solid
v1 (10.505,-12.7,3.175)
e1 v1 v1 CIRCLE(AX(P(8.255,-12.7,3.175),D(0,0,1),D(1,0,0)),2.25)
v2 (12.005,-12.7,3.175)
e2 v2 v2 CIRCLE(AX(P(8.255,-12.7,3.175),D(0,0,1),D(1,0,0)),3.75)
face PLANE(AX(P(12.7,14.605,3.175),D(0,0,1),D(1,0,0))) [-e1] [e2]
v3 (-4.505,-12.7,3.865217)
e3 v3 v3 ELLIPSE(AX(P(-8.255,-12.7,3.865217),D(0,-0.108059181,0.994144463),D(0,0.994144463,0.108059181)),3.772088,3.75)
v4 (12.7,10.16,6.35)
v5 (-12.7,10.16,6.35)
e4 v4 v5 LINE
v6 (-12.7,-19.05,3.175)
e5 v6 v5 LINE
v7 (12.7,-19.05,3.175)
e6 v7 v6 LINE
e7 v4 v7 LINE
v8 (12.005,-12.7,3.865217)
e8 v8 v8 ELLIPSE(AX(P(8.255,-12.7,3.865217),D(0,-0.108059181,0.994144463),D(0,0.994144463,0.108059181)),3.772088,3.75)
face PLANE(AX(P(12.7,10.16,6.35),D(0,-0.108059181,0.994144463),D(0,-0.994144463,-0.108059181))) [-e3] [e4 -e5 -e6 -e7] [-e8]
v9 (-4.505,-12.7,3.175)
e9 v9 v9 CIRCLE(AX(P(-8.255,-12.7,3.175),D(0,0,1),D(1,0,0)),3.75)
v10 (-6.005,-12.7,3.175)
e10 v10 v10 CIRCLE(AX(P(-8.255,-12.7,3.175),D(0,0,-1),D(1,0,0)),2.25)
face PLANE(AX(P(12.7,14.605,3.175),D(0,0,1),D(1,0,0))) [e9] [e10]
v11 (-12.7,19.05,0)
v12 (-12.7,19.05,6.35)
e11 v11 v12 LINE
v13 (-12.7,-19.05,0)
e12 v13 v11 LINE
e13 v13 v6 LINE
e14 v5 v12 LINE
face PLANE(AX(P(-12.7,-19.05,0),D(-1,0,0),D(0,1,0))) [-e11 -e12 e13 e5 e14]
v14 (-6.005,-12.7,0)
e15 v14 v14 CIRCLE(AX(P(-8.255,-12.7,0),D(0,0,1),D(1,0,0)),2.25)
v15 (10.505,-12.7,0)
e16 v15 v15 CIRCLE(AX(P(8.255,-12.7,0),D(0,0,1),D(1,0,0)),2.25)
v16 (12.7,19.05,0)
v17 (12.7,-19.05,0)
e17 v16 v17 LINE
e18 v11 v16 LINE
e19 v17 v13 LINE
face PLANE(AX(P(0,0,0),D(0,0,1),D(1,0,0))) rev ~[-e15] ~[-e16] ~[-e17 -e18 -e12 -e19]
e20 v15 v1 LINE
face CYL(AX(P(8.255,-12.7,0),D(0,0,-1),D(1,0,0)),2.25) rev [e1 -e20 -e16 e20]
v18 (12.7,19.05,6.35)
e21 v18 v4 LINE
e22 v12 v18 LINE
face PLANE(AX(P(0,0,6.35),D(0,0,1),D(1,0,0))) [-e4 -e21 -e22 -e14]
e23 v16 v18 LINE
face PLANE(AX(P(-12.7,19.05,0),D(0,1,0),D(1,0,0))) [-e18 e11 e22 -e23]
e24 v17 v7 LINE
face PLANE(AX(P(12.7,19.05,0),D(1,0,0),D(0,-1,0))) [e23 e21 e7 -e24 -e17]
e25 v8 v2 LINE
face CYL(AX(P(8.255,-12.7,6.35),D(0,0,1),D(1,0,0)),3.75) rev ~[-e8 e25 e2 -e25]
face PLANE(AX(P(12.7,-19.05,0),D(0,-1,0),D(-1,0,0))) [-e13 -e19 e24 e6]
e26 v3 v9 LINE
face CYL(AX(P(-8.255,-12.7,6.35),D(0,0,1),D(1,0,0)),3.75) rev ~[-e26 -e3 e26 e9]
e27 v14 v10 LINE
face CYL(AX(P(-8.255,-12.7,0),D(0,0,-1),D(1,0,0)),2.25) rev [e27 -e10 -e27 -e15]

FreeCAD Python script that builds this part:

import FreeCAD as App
import Part
import Sketcher
from FreeCAD import Vector
Q = App.Units.Quantity

doc = App.newDocument("Part")
params = doc.addObject("Spreadsheet::Sheet", "Params")
for row, (alias, value) in enumerate([
    ("sketch1_width", "1 in"),
    ("sketch1_height", "1.5 in"),
    ("pad1_length", "0.25 in"),
    ("sketch2_width", "1.15 in"),
    ("sketch2_height", "0.125 in"),
    ("pocket2_length", "0.125 in"),
], start=1):
    params.set(f"A{row}", alias)
    params.set(f"B{row}", "=" + value)
    params.setAlias(f"B{row}", alias)

body = doc.addObject("PartDesign::Body", "Body")

# Sketch on XY plane
sketch1 = body.newObject("Sketcher::SketchObject", "Sketch")
sketch1.AttachmentSupport = (doc.getObject("XY_Plane"), [""])
sketch1.MapMode = "FlatFace"
sketch1.addGeometry(Part.LineSegment(Vector(-12.7, -19.1, 0), Vector(12.7, -19.1, 0)), False)
sketch1.addGeometry(Part.LineSegment(Vector(12.7, -19.1, 0), Vector(12.7, 19.1, 0)), False)
sketch1.addGeometry(Part.LineSegment(Vector(12.7, 19.1, 0), Vector(-12.7, 19.1, 0)), False)
sketch1.addGeometry(Part.LineSegment(Vector(-12.7, 19.1, 0), Vector(-12.7, -19.1, 0)), False)
sketch1.addGeometry(Part.Circle(Vector(-8.3, -12.7, 0), Vector(0, 0, 1), 2.2), False)
sketch1.addGeometry(Part.Circle(Vector(8.3, -12.7, 0), Vector(0, 0, 1), 2.2), False)
sketch1.addConstraint(Sketcher.Constraint("Coincident", 0, 2, 1, 1))
sketch1.addConstraint(Sketcher.Constraint("Coincident", 1, 2, 2, 1))
sketch1.addConstraint(Sketcher.Constraint("Coincident", 2, 2, 3, 1))
sketch1.addConstraint(Sketcher.Constraint("Coincident", 3, 2, 0, 1))
sketch1.addConstraint(Sketcher.Constraint("Horizontal", 0))
sketch1.addConstraint(Sketcher.Constraint("Vertical", 1))
sketch1.addConstraint(Sketcher.Constraint("Horizontal", 2))
sketch1.addConstraint(Sketcher.Constraint("Vertical", 3))
sketch1.addConstraint(Sketcher.Constraint("Equal", 4, 5))
sketch1.addConstraint(Sketcher.Constraint("Symmetric", 0, 2, 2, 2, -1, 1))
sketch1.addConstraint(Sketcher.Constraint("Symmetric", 4, 3, 5, 3, -2))
sketch1.addConstraint(Sketcher.Constraint("DistanceX", 0, 1, 0, 2, Q("1 in")))
sketch1.addConstraint(Sketcher.Constraint("DistanceY", 1, 1, 1, 2, Q("1.5 in")))
sketch1.addConstraint(Sketcher.Constraint("Diameter", 4, Q("4.5 mm")))
sketch1.addConstraint(Sketcher.Constraint("DistanceY", 0, 2, 5, 3, Q("0.25 in")))
sketch1.addConstraint(Sketcher.Constraint("DistanceX", 4, 3, -1, 1, Q("0.325 in")))
sketch1.setExpression("Constraints[11]", "Params.sketch1_width")
sketch1.setExpression("Constraints[12]", "Params.sketch1_height")
pad1 = body.newObject("PartDesign::Pad", "Pad")
pad1.Profile = sketch1
pad1.setExpression("Length", "Params.pad1_length")

# Sketch on YZ plane
sketch2 = body.newObject("Sketcher::SketchObject", "Sketch001")
sketch2.AttachmentSupport = (doc.getObject("YZ_Plane"), [""])
sketch2.MapMode = "FlatFace"
sketch2.AttachmentOffset = App.Placement(Vector(0, 0, 0.5 * 25.4), App.Rotation())
sketch2.addGeometry(Part.LineSegment(Vector(10.2, 6.3, 0), Vector(-19.1, 6.3, 0)), False)
sketch2.addGeometry(Part.LineSegment(Vector(-19.1, 6.3, 0), Vector(-19.1, 3.2, 0)), False)
sketch2.addGeometry(Part.LineSegment(Vector(-19.1, 3.2, 0), Vector(10.2, 6.3, 0)), False)
sketch2.addConstraint(Sketcher.Constraint("Coincident", 0, 2, 1, 1))
sketch2.addConstraint(Sketcher.Constraint("Coincident", 1, 2, 2, 1))
sketch2.addConstraint(Sketcher.Constraint("Coincident", 2, 2, 0, 1))
sketch2.addConstraint(Sketcher.Constraint("Horizontal", 0))
sketch2.addConstraint(Sketcher.Constraint("Vertical", 1))
sketch2.addConstraint(Sketcher.Constraint("DistanceX", 0, 2, 0, 1, Q("1.15 in")))
sketch2.addConstraint(Sketcher.Constraint("DistanceX", -1, 1, 2, 2, Q("0.4 in")))
sketch2.addConstraint(Sketcher.Constraint("DistanceY", 1, 2, 1, 1, Q("0.125 in")))
sketch2.addConstraint(Sketcher.Constraint("DistanceY", -1, 1, 0, 2, Q("0.25 in")))
sketch2.setExpression("Constraints[5]", "Params.sketch2_width")
sketch2.setExpression("Constraints[7]", "Params.sketch2_height")
pocket1 = body.newObject("PartDesign::Pocket", "Pocket")
pocket1.Profile = sketch2
pocket1.Type = "ThroughAll"

# Sketch on XY plane
sketch3 = body.newObject("Sketcher::SketchObject", "Sketch002")
sketch3.AttachmentSupport = (doc.getObject("XY_Plane"), [""])
sketch3.MapMode = "FlatFace"
sketch3.AttachmentOffset = App.Placement(Vector(0, 0, 0.25 * 25.4), App.Rotation())
sketch3.addGeometry(Part.Circle(Vector(-8.3, -12.7, 0), Vector(0, 0, 1), 3.8), False)
sketch3.addGeometry(Part.Circle(Vector(8.3, -12.7, 0), Vector(0, 0, 1), 3.8), False)
sketch3.addGeometry(Part.Circle(Vector(8.3, -12.7, 0), Vector(0, 0, 1), 2.2), False)
sketch3.addConstraint(Sketcher.Constraint("Coincident", 2, 3, 1, 3))
sketch3.addConstraint(Sketcher.Constraint("Equal", 0, 1))
sketch3.addConstraint(Sketcher.Constraint("Symmetric", 0, 3, 1, 3, -2))
sketch3.addConstraint(Sketcher.Constraint("Diameter", 0, Q("7.5 mm")))
sketch3.addConstraint(Sketcher.Constraint("DistanceY", 0, 3, -1, 1, Q("0.5 in")))
sketch3.addConstraint(Sketcher.Constraint("Diameter", 2, Q("4.5 mm")))
sketch3.addConstraint(Sketcher.Constraint("DistanceX", 0, 3, 1, 3, Q("0.65 in")))
pocket2 = body.newObject("PartDesign::Pocket", "Pocket001")
pocket2.Profile = sketch3
pocket2.setExpression("Length", "Params.pocket2_length")

doc.recompute()
